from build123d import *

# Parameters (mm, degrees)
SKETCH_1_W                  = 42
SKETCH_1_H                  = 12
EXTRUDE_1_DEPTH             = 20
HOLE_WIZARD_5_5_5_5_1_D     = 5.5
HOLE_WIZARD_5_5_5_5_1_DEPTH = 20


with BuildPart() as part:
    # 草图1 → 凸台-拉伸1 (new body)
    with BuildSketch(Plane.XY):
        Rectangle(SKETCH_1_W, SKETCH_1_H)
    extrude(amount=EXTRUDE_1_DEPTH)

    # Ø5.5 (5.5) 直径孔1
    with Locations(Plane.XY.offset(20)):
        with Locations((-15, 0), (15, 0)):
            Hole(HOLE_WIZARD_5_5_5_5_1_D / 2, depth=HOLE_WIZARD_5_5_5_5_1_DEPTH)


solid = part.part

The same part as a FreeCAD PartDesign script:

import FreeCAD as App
import Part
import Sketcher

V = App.Vector
Q = App.Units.Quantity


def add_polygon(sketch, points):
    """Adds a closed chain of lines whose ends are joined by coincident constraints."""
    first, n = sketch.GeometryCount, len(points)
    for a, b in zip(points, points[1:] + points[:1]):
        sketch.addGeometry(Part.LineSegment(App.Vector(*a, 0), App.Vector(*b, 0)), False)
    for i in range(n):
        sketch.addConstraint(Sketcher.Constraint("Coincident", first + i, 2, first + (i + 1) % n, 1))

doc = App.newDocument("Part")
body = doc.addObject("PartDesign::Body", "Body")

# Sketch on XY plane
sketch1 = doc.addObject("Sketcher::SketchObject", "Sketch")
body.addObject(sketch1)
sketch1.AttachmentSupport = (doc.XY_Plane, [""])
sketch1.MapMode = "FlatFace"
add_polygon(sketch1, [(-21, 6), (-21, -6), (21, -6), (21, 6)])  # lines 0-3
sketch1.addConstraint([
    Sketcher.Constraint("Vertical", 0),
    Sketcher.Constraint("Horizontal", 1),
    Sketcher.Constraint("Vertical", 2),
    Sketcher.Constraint("Horizontal", 3),
    Sketcher.Constraint("Symmetric", 0, 2, 2, 2, -1, 1),
    Sketcher.Constraint("DistanceX", 1, 1, 1, 2, Q("42 mm")),
    Sketcher.Constraint("DistanceY", 0, 2, 0, 1, Q("12 mm")),
])
pad1 = doc.addObject("PartDesign::Pad", "Pad")
body.addObject(pad1)
pad1.Profile = sketch1
pad1.Length = 20

# Sketch on XY plane
sketch2 = doc.addObject("Sketcher::SketchObject", "Sketch001")
body.addObject(sketch2)
sketch2.AttachmentSupport = (doc.XY_Plane, [""])
sketch2.MapMode = "FlatFace"
sketch2.AttachmentOffset = App.Placement(V(0, 0, 20), App.Rotation())
sketch2.addGeometry([
    Part.Circle(V(-15, 0, 0), V(0, 0, 1), 2.75),
    Part.Circle(V(15, 0, 0), V(0, 0, 1), 2.75),
], False)
sketch2.addConstraint([
    Sketcher.Constraint("Equal", 0, 1),
    Sketcher.Constraint("Symmetric", 0, 3, 1, 3, -1, 1),
    Sketcher.Constraint("PointOnObject", 0, 3, -1),
    Sketcher.Constraint("Diameter", 0, Q("5.5 mm")),
    Sketcher.Constraint("DistanceX", 0, 3, -1, 1, Q("15 mm")),
])
doc.recompute()
hole = doc.addObject("PartDesign::Hole", "Hole")
body.addObject(hole)
hole.Profile = sketch2
hole.ThreadType = "None"
hole.Diameter = 5.5
hole.DepthType = "Dimension"
hole.Depth = 20
hole.DrillPoint = "Flat"

doc.recompute()
